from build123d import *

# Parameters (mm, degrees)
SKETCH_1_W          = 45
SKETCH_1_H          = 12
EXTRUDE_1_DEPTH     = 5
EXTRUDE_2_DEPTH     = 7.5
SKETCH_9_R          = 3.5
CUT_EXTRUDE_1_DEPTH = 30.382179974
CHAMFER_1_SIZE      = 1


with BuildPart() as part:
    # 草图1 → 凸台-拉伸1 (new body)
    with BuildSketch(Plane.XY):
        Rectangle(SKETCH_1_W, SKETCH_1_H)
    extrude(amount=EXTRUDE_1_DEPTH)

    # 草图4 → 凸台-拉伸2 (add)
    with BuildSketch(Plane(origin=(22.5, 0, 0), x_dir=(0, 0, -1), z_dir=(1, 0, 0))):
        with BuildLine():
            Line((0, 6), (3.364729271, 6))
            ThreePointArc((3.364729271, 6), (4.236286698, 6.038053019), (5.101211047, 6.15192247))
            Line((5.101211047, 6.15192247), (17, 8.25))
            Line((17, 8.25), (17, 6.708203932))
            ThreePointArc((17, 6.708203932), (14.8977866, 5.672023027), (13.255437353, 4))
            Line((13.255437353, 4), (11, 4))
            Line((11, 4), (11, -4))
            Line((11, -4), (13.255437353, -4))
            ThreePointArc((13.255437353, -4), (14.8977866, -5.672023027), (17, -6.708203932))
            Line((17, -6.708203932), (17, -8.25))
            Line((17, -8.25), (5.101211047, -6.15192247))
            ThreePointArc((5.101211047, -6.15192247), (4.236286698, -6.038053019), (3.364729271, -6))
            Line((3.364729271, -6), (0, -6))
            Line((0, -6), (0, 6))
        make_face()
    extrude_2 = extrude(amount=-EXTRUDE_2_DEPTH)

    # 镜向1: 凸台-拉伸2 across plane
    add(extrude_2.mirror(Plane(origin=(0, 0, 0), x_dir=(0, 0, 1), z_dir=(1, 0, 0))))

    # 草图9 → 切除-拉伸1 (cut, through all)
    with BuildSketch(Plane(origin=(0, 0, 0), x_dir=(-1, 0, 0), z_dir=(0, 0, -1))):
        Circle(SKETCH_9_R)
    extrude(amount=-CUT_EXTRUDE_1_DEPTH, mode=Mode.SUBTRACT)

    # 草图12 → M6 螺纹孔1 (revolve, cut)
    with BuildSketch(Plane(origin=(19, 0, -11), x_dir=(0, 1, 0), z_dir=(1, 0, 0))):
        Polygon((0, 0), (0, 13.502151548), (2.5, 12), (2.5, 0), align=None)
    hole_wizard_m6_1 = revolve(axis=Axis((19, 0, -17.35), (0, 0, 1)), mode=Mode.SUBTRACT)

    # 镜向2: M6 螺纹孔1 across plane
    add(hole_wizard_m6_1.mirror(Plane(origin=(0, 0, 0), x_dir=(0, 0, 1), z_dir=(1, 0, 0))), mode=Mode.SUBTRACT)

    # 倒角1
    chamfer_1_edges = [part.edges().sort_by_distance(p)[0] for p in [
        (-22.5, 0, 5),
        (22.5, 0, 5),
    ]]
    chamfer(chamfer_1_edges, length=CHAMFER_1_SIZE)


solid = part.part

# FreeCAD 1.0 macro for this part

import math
import FreeCAD as App
import Part
import Sketcher

V = App.Vector
Q = App.Units.Quantity


def edges_at(feature, points):
    """Names of the edges that pass closest to the given points."""
    edges = feature.Shape.Edges
    near = lambda p: min(range(len(edges)), key=lambda i: edges[i].distToShape(Part.Vertex(*p))[0])
    return sorted({f"Edge{near(p) + 1}" for p in points})

doc = App.newDocument("Part")
body = doc.addObject("PartDesign::Body", "Body")

sketch1 = body.newObject("Sketcher::SketchObject", "Sketch")
sketch1.AttachmentSupport = (doc.getObject("XY_Plane"), [""])
sketch1.MapMode = "FlatFace"
sketch1.addGeometry([
    Part.LineSegment(V(-22, 6, 0), V(-22, -6, 0)),
    Part.LineSegment(V(-22, -6, 0), V(22, -6, 0)),
    Part.LineSegment(V(22, -6, 0), V(22, 6, 0)),
    Part.LineSegment(V(22, 6, 0), V(-22, 6, 0)),
], False)
sketch1.addConstraint([
    Sketcher.Constraint("Coincident", 0, 2, 1, 1),
    Sketcher.Constraint("Coincident", 1, 2, 2, 1),
    Sketcher.Constraint("Coincident", 2, 2, 3, 1),
    Sketcher.Constraint("Coincident", 3, 2, 0, 1),
    Sketcher.Constraint("Vertical", 0),
    Sketcher.Constraint("Horizontal", 1),
    Sketcher.Constraint("Vertical", 2),
    Sketcher.Constraint("Horizontal", 3),
    Sketcher.Constraint("Symmetric", 0, 2, 2, 2, -1, 1),
    Sketcher.Constraint("DistanceX", 1, 1, 1, 2, 45.0),
    Sketcher.Constraint("DistanceY", 0, 2, 0, 1, 12.0),
])
pad1 = body.newObject("PartDesign::Pad", "Pad")
pad1.Profile = sketch1
pad1.Length = 5

sketch2 = body.newObject("Sketcher::SketchObject", "Sketch001")
sketch2.AttachmentSupport = (doc.getObject("YZ_Plane"), [""])
sketch2.MapMode = "FlatFace"
sketch2.AttachmentOffset = App.Placement(V(0, 0, 22.5), App.Rotation())
sketch2.addGeometry([
    Part.LineSegment(V(6, -3.4, 0), V(6, 0, 0)),
    Part.LineSegment(V(6, 0, 0), V(-6, 0, 0)),
    Part.LineSegment(V(-6, 0, 0), V(-6, -3.4, 0)),
    Part.ArcOfCircle(Part.Circle(V(-16, -3.4, 0), V(0, 0, 1), 10), math.radians(-10), math.radians(0)),
    Part.LineSegment(V(-6.2, -5.1, 0), V(-8.2, -17, 0)),
    Part.LineSegment(V(-8.2, -17, 0), V(-6.7, -17, 0)),
    Part.ArcOfCircle(Part.Circle(V(0, -19, 0), V(0, 0, 1), 7), math.radians(125), math.radians(163)),
    Part.LineSegment(V(-4, -13.3, 0), V(-4, -11, 0)),
    Part.LineSegment(V(-4, -11, 0), V(4, -11, 0)),
    Part.LineSegment(V(4, -11, 0), V(4, -13.3, 0)),
    Part.ArcOfCircle(Part.Circle(V(0, -19, 0), V(0, 0, 1), 7), math.radians(17), math.radians(55)),
    Part.LineSegment(V(6.7, -17, 0), V(8.2, -17, 0)),
    Part.LineSegment(V(8.2, -17, 0), V(6.2, -5.1, 0)),
    Part.ArcOfCircle(Part.Circle(V(16, -3.4, 0), V(0, 0, 1), 10), math.radians(180), math.radians(190)),
], False)
sketch2.addConstraint([
    Sketcher.Constraint("Coincident", 0, 2, 1, 1),
    Sketcher.Constraint("Coincident", 1, 2, 2, 1),
    Sketcher.Constraint("Tangent", 2, 2, 3, 2),
    Sketcher.Constraint("Tangent", 3, 1, 4, 1),
    Sketcher.Constraint("Coincident", 4, 2, 5, 1),
    Sketcher.Constraint("Coincident", 5, 2, 6, 2),
    Sketcher.Constraint("Coincident", 6, 1, 7, 1),
    Sketcher.Constraint("Coincident", 7, 2, 8, 1),
    Sketcher.Constraint("Coincident", 8, 2, 9, 1),
    Sketcher.Constraint("Coincident", 9, 2, 10, 2),
    Sketcher.Constraint("Coincident", 10, 1, 11, 1),
    Sketcher.Constraint("Coincident", 11, 2, 12, 1),
    Sketcher.Constraint("Tangent", 12, 2, 13, 2),
    Sketcher.Constraint("Tangent", 13, 1, 0, 1),
    Sketcher.Constraint("Vertical", 0),
    Sketcher.Constraint("Horizontal", 1),
    Sketcher.Constraint("Vertical", 2),
    Sketcher.Constraint("Horizontal", 5),
    Sketcher.Constraint("Vertical", 7),
    Sketcher.Constraint("Horizontal", 8),
    Sketcher.Constraint("Vertical", 9),
    Sketcher.Constraint("Horizontal", 11),
    Sketcher.Constraint("Coincident", 10, 3, 6, 3),
    Sketcher.Constraint("Equal", 6, 10),
    Sketcher.Constraint("Equal", 3, 13),
    Sketcher.Constraint("Symmetric", 0, 2, 1, 2, -1, 1),
    Sketcher.Constraint("Symmetric", 6, 1, 9, 2, -2),
    Sketcher.Constraint("Symmetric", 4, 2, 11, 2, -2),
    Sketcher.Constraint("Horizontal", 3, 3, 13, 3),
    Sketcher.Constraint("Radius", 3, 10.0),
    Sketcher.Constraint("Radius", 6, 7.0),
    Sketcher.Constraint("DistanceX", 1, 2, 1, 1, 12.0),
    Sketcher.Constraint("DistanceX", 8, 1, 8, 2, 8.0),
    Sketcher.Constraint("Angle", 4, Q("-100 deg")),
    Sketcher.Constraint("DistanceY", 6, 3, -1, 1, 19.0),
    Sketcher.Constraint("DistanceY", 4, 2, -1, 1, 17.0),
    Sketcher.Constraint("DistanceY", 7, 2, -1, 1, 11.0),
    Sketcher.Constraint("DistanceX", 4, 2, -1, 1, 8.25),
])
pad2 = body.newObject("PartDesign::Pad", "Pad001")
pad2.Profile = sketch2
pad2.Length = 7.5
pad2.Reversed = True
doc.recompute()

mirrored = body.newObject("PartDesign::Mirrored", "Mirrored")
mirrored.Originals = [pad2]
mirrored.MirrorPlane = (doc.getObject("YZ_Plane"), [""])
body.Tip = mirrored

sketch3 = body.newObject("Sketcher::SketchObject", "Sketch002")
sketch3.AttachmentSupport = (doc.getObject("XY_Plane"), [""])
sketch3.MapMode = "FlatFace"
sketch3.addGeometry(Part.Circle(V(0, 0, 0), V(0, 0, 1), 3.5), False)
sketch3.addConstraint([
    Sketcher.Constraint("Coincident", 0, 3, -1, 1),
    Sketcher.Constraint("Diameter", 0, 7.0),
])
pocket1 = body.newObject("PartDesign::Pocket", "Pocket")
pocket1.Profile = sketch3
pocket1.Type = "ThroughAll"
pocket1.Reversed = True

sketch4 = body.newObject("Sketcher::SketchObject", "Sketch003")
sketch4.AttachmentSupport = (doc.getObject("YZ_Plane"), [""])
sketch4.MapMode = "FlatFace"
sketch4.AttachmentOffset = App.Placement(V(0, 0, 19), App.Rotation())
sketch4.addGeometry([
    Part.LineSegment(V(0, 2.5, 0), V(0, -11, 0)),
    Part.LineSegment(V(0, -11, 0), V(2.5, -11, 0)),
    Part.LineSegment(V(2.5, -11, 0), V(2.5, 1, 0)),
    Part.LineSegment(V(2.5, 1, 0), V(0, 2.5, 0)),
], False)
sketch4.addConstraint([
    Sketcher.Constraint("Coincident", 0, 2, 1, 1),
    Sketcher.Constraint("Coincident", 1, 2, 2, 1),
    Sketcher.Constraint("Coincident", 2, 2, 3, 1),
    Sketcher.Constraint("Coincident", 3, 2, 0, 1),
    Sketcher.Constraint("Vertical", 0),
    Sketcher.Constraint("Horizontal", 1),
    Sketcher.Constraint("Vertical", 2),
    Sketcher.Constraint("PointOnObject", 0, 2, -2),
    Sketcher.Constraint("DistanceY", 2, 1, 2, 2, 12.0),
    Sketcher.Constraint("Angle", 3, Q("149 deg")),
    Sketcher.Constraint("DistanceX", 1, 1, 1, 2, 2.5),
    Sketcher.Constraint("DistanceY", 0, 2, -1, 1, 11.0),
])
groove = body.newObject("PartDesign::Groove", "Groove")
groove.Profile = sketch4
groove.ReferenceAxis = (sketch4, ["V_Axis"])
groove.Angle = 360
doc.recompute()

mirrored2 = body.newObject("PartDesign::Mirrored", "Mirrored001")
mirrored2.Originals = [groove]
mirrored2.MirrorPlane = (doc.getObject("YZ_Plane"), [""])
body.Tip = mirrored2
doc.recompute()

chamfer = body.newObject("PartDesign::Chamfer", "Chamfer")
chamfer.Base = (mirrored2, edges_at(mirrored2, [(-22.5, 0, 5), (22.5, 0, 5)]))
chamfer.Size = 1

doc.recompute()
